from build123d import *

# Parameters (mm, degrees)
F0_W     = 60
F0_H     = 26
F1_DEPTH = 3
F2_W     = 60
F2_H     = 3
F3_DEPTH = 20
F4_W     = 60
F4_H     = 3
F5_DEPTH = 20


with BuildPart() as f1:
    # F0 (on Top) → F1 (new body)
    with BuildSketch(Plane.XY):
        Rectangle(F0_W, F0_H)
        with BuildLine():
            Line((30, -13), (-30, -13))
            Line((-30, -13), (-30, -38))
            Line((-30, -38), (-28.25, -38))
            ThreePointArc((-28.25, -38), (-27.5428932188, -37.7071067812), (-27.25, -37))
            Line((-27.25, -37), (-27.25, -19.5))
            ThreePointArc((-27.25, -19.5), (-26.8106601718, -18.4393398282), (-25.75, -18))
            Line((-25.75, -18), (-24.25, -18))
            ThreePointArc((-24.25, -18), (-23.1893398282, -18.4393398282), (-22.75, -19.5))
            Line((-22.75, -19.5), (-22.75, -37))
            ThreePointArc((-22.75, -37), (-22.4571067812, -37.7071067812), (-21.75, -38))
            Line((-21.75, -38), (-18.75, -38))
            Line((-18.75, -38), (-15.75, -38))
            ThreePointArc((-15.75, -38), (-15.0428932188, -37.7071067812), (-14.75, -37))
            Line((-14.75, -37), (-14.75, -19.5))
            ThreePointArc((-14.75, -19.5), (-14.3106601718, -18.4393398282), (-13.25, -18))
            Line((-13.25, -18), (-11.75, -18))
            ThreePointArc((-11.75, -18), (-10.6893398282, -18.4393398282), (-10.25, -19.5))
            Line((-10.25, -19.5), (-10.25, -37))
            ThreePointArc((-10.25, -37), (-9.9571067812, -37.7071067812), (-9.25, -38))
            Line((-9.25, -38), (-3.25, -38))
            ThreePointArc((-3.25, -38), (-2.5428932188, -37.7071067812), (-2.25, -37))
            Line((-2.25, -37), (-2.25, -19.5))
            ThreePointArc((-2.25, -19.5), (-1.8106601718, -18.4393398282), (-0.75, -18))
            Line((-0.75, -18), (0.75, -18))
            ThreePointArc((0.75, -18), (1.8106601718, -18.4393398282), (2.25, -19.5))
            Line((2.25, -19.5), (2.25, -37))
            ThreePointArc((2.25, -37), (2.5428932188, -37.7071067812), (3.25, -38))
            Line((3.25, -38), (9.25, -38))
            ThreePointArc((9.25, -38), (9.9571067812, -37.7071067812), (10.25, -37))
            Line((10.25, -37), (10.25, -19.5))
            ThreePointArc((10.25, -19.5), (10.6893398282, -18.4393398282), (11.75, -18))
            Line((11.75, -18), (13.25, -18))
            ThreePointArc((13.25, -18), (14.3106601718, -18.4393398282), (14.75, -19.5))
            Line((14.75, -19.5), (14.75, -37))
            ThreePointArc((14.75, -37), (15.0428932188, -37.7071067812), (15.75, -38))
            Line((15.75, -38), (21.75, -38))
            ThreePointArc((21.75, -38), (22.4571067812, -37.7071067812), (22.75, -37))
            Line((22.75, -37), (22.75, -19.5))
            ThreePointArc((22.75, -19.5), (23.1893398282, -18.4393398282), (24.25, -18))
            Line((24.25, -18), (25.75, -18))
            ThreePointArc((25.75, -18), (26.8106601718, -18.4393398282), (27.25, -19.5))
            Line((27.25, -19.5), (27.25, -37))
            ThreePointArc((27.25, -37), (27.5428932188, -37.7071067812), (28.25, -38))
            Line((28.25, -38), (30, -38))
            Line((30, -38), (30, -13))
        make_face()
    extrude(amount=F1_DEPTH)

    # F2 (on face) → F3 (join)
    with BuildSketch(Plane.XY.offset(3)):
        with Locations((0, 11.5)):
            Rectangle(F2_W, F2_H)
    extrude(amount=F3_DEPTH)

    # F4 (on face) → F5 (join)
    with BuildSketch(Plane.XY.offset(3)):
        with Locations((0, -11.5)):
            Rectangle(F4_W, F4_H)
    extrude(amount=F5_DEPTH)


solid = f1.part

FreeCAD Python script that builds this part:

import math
import FreeCAD as App
import Part
import Sketcher

V = App.Vector
Q = App.Units.Quantity


def add_polygon(sketch, points):
    """Adds a closed chain of lines whose ends are joined by coincident constraints."""
    first, n = sketch.GeometryCount, len(points)
    for a, b in zip(points, points[1:] + points[:1]):
        sketch.addGeometry(Part.LineSegment(App.Vector(*a, 0), App.Vector(*b, 0)), False)
    for i in range(n):
        sketch.addConstraint(Sketcher.Constraint("Coincident", first + i, 2, first + (i + 1) % n, 1))

doc = App.newDocument("Part")
params = doc.addObject("Spreadsheet::Sheet", "Params")
for row, (alias, value) in enumerate([
    ("sketch1_radius", "1 mm"),
    ("sketch1_radius2", "1.5 mm"),
    ("sketch1_width", "6 mm"),
    ("sketch1_width2", "60 mm"),
    ("sketch1_height", "51 mm"),
    ("pad1_length", "3 mm"),
    ("sketch2_width", "60 mm"),
    ("sketch2_height", "3 mm"),
    ("pad2_length", "20 mm"),
    ("sketch3_width", "60 mm"),
    ("sketch3_height", "3 mm"),
    ("pad3_length", "20 mm"),
], start=1):
    params.set(f"A{row}", alias)
    params.set(f"B{row}", "=" + value)
    params.setAlias(f"B{row}", alias)

body = doc.addObject("PartDesign::Body", "Body")

# Sketch on XY plane
sketch1 = body.newObject("Sketcher::SketchObject", "Sketch")
sketch1.AttachmentSupport = (doc.getObject("XY_Plane"), [""])
sketch1.MapMode = "FlatFace"
sketch1.addGeometry([
    Part.LineSegment(V(-30, 13, 0), V(-30, -38, 0)),  # 0
    Part.LineSegment(V(-30, -38, 0), V(-28.2, -38, 0)),  # 1
    Part.ArcOfCircle(Part.Circle(V(-28.2, -37, 0), V(0, 0, 1), 1), math.radians(-90), math.radians(0)),  # 2
    Part.LineSegment(V(-27.2, -37, 0), V(-27.2, -19.5, 0)),  # 3
    Part.ArcOfCircle(Part.Circle(V(-25.8, -19.5, 0), V(0, 0, 1), 1.5), math.radians(90), math.radians(180)),  # 4
    Part.LineSegment(V(-25.8, -18, 0), V(-24.2, -18, 0)),  # 5
    Part.ArcOfCircle(Part.Circle(V(-24.2, -19.5, 0), V(0, 0, 1), 1.5), math.radians(0), math.radians(90)),  # 6
    Part.LineSegment(V(-22.8, -19.5, 0), V(-22.8, -37, 0)),  # 7
    Part.ArcOfCircle(Part.Circle(V(-21.8, -37, 0), V(0, 0, 1), 1), math.radians(180), math.radians(270)),  # 8
    Part.LineSegment(V(-21.8, -38, 0), V(-15.8, -38, 0)),  # 9
    Part.ArcOfCircle(Part.Circle(V(-15.8, -37, 0), V(0, 0, 1), 1), math.radians(-90), math.radians(0)),  # 10
    Part.LineSegment(V(-14.8, -37, 0), V(-14.8, -19.5, 0)),  # 11
    Part.ArcOfCircle(Part.Circle(V(-13.2, -19.5, 0), V(0, 0, 1), 1.5), math.radians(90), math.radians(180)),  # 12
    Part.LineSegment(V(-13.2, -18, 0), V(-11.8, -18, 0)),  # 13
    Part.ArcOfCircle(Part.Circle(V(-11.8, -19.5, 0), V(0, 0, 1), 1.5), math.radians(0), math.radians(90)),  # 14
    Part.LineSegment(V(-10.2, -19.5, 0), V(-10.2, -37, 0)),  # 15
    Part.ArcOfCircle(Part.Circle(V(-9.2, -37, 0), V(0, 0, 1), 1), math.radians(180), math.radians(270)),  # 16
    Part.LineSegment(V(-9.2, -38, 0), V(-3.2, -38, 0)),  # 17
    Part.ArcOfCircle(Part.Circle(V(-3.2, -37, 0), V(0, 0, 1), 1), math.radians(-90), math.radians(0)),  # 18
    Part.LineSegment(V(-2.2, -37, 0), V(-2.2, -19.5, 0)),  # 19
    Part.ArcOfCircle(Part.Circle(V(-0.8, -19.5, 0), V(0, 0, 1), 1.5), math.radians(90), math.radians(180)),  # 20
    Part.LineSegment(V(-0.8, -18, 0), V(0.8, -18, 0)),  # 21
    Part.ArcOfCircle(Part.Circle(V(0.8, -19.5, 0), V(0, 0, 1), 1.5), math.radians(0), math.radians(90)),  # 22
    Part.LineSegment(V(2.2, -19.5, 0), V(2.2, -37, 0)),  # 23
    Part.ArcOfCircle(Part.Circle(V(3.2, -37, 0), V(0, 0, 1), 1), math.radians(180), math.radians(270)),  # 24
    Part.LineSegment(V(3.2, -38, 0), V(9.2, -38, 0)),  # 25
    Part.ArcOfCircle(Part.Circle(V(9.2, -37, 0), V(0, 0, 1), 1), math.radians(-90), math.radians(0)),  # 26
    Part.LineSegment(V(10.2, -37, 0), V(10.2, -19.5, 0)),  # 27
    Part.ArcOfCircle(Part.Circle(V(11.8, -19.5, 0), V(0, 0, 1), 1.5), math.radians(90), math.radians(180)),  # 28
    Part.LineSegment(V(11.8, -18, 0), V(13.2, -18, 0)),  # 29
    Part.ArcOfCircle(Part.Circle(V(13.2, -19.5, 0), V(0, 0, 1), 1.5), math.radians(0), math.radians(90)),  # 30
    Part.LineSegment(V(14.8, -19.5, 0), V(14.8, -37, 0)),  # 31
    Part.ArcOfCircle(Part.Circle(V(15.8, -37, 0), V(0, 0, 1), 1), math.radians(180), math.radians(270)),  # 32
    Part.LineSegment(V(15.8, -38, 0), V(21.8, -38, 0)),  # 33
    Part.ArcOfCircle(Part.Circle(V(21.8, -37, 0), V(0, 0, 1), 1), math.radians(-90), math.radians(0)),  # 34
    Part.LineSegment(V(22.8, -37, 0), V(22.8, -19.5, 0)),  # 35
    Part.ArcOfCircle(Part.Circle(V(24.2, -19.5, 0), V(0, 0, 1), 1.5), math.radians(90), math.radians(180)),  # 36
    Part.LineSegment(V(24.2, -18, 0), V(25.8, -18, 0)),  # 37
    Part.ArcOfCircle(Part.Circle(V(25.8, -19.5, 0), V(0, 0, 1), 1.5), math.radians(0), math.radians(90)),  # 38
    Part.LineSegment(V(27.2, -19.5, 0), V(27.2, -37, 0)),  # 39
    Part.ArcOfCircle(Part.Circle(V(28.2, -37, 0), V(0, 0, 1), 1), math.radians(180), math.radians(270)),  # 40
    Part.LineSegment(V(28.2, -38, 0), V(30, -38, 0)),  # 41
    Part.LineSegment(V(30, -38, 0), V(30, 13, 0)),  # 42
    Part.LineSegment(V(30, 13, 0), V(-30, 13, 0)),  # 43
], False)
sketch1.addConstraint([
    Sketcher.Constraint("Coincident", 0, 2, 1, 1),
    Sketcher.Constraint("Tangent", 1, 2, 2, 1),
    Sketcher.Constraint("Tangent", 2, 2, 3, 1),
    Sketcher.Constraint("Tangent", 3, 2, 4, 2),
    Sketcher.Constraint("Tangent", 4, 1, 5, 1),
    Sketcher.Constraint("Tangent", 5, 2, 6, 2),
    Sketcher.Constraint("Tangent", 6, 1, 7, 1),
    Sketcher.Constraint("Tangent", 7, 2, 8, 1),
    Sketcher.Constraint("Tangent", 8, 2, 9, 1),
    Sketcher.Constraint("Tangent", 9, 2, 10, 1),
    Sketcher.Constraint("Tangent", 10, 2, 11, 1),
    Sketcher.Constraint("Tangent", 11, 2, 12, 2),
    Sketcher.Constraint("Tangent", 12, 1, 13, 1),
    Sketcher.Constraint("Tangent", 13, 2, 14, 2),
    Sketcher.Constraint("Tangent", 14, 1, 15, 1),
    Sketcher.Constraint("Tangent", 15, 2, 16, 1),
    Sketcher.Constraint("Tangent", 16, 2, 17, 1),
    Sketcher.Constraint("Tangent", 17, 2, 18, 1),
    Sketcher.Constraint("Tangent", 18, 2, 19, 1),
    Sketcher.Constraint("Tangent", 19, 2, 20, 2),
    Sketcher.Constraint("Tangent", 20, 1, 21, 1),
    Sketcher.Constraint("Tangent", 21, 2, 22, 2),
    Sketcher.Constraint("Tangent", 22, 1, 23, 1),
    Sketcher.Constraint("Tangent", 23, 2, 24, 1),
    Sketcher.Constraint("Tangent", 24, 2, 25, 1),
    Sketcher.Constraint("Tangent", 25, 2, 26, 1),
    Sketcher.Constraint("Tangent", 26, 2, 27, 1),
    Sketcher.Constraint("Tangent", 27, 2, 28, 2),
    Sketcher.Constraint("Tangent", 28, 1, 29, 1),
    Sketcher.Constraint("Tangent", 29, 2, 30, 2),
    Sketcher.Constraint("Tangent", 30, 1, 31, 1),
    Sketcher.Constraint("Tangent", 31, 2, 32, 1),
    Sketcher.Constraint("Tangent", 32, 2, 33, 1),
    Sketcher.Constraint("Tangent", 33, 2, 34, 1),
    Sketcher.Constraint("Tangent", 34, 2, 35, 1),
    Sketcher.Constraint("Tangent", 35, 2, 36, 2),
    Sketcher.Constraint("Tangent", 36, 1, 37, 1),
    Sketcher.Constraint("Tangent", 37, 2, 38, 2),
    Sketcher.Constraint("Tangent", 38, 1, 39, 1),
    Sketcher.Constraint("Tangent", 39, 2, 40, 1),
    Sketcher.Constraint("Tangent", 40, 2, 41, 1),
    Sketcher.Constraint("Coincident", 41, 2, 42, 1),
    Sketcher.Constraint("Coincident", 42, 2, 43, 1),
    Sketcher.Constraint("Coincident", 43, 2, 0, 1),
    Sketcher.Constraint("Vertical", 0),
    Sketcher.Constraint("Horizontal", 1),
    Sketcher.Constraint("Vertical", 3),
    Sketcher.Constraint("Horizontal", 5),
    Sketcher.Constraint("Vertical", 7),
    Sketcher.Constraint("Horizontal", 9),
    Sketcher.Constraint("Vertical", 11),
    Sketcher.Constraint("Horizontal", 13),
    Sketcher.Constraint("Vertical", 15),
    Sketcher.Constraint("Horizontal", 17),
    Sketcher.Constraint("Vertical", 19),
    Sketcher.Constraint("Horizontal", 21),
    Sketcher.Constraint("Vertical", 23),
    Sketcher.Constraint("Horizontal", 25),
    Sketcher.Constraint("Vertical", 27),
    Sketcher.Constraint("Horizontal", 29),
    Sketcher.Constraint("Vertical", 31),
    Sketcher.Constraint("Horizontal", 33),
    Sketcher.Constraint("Vertical", 35),
    Sketcher.Constraint("Horizontal", 37),
    Sketcher.Constraint("Vertical", 39),
    Sketcher.Constraint("Horizontal", 41),
    Sketcher.Constraint("Vertical", 42),
    Sketcher.Constraint("Horizontal", 43),
    Sketcher.Constraint("Equal", 4, 6),
    Sketcher.Constraint("Equal", 2, 8),
    Sketcher.Constraint("Equal", 8, 10),
    Sketcher.Constraint("Equal", 6, 12),
    Sketcher.Constraint("Equal", 12, 14),
    Sketcher.Constraint("Equal", 10, 16),
    Sketcher.Constraint("Equal", 16, 18),
    Sketcher.Constraint("Equal", 14, 20),
    Sketcher.Constraint("Equal", 20, 22),
    Sketcher.Constraint("Equal", 18, 24),
    Sketcher.Constraint("Equal", 24, 26),
    Sketcher.Constraint("Equal", 22, 28),
    Sketcher.Constraint("Equal", 28, 30),
    Sketcher.Constraint("Equal", 26, 32),
    Sketcher.Constraint("Equal", 32, 34),
    Sketcher.Constraint("Equal", 30, 36),
    Sketcher.Constraint("Equal", 36, 38),
    Sketcher.Constraint("Equal", 34, 40),
    Sketcher.Constraint("Symmetric", 18, 3, 24, 3, -2),
    Sketcher.Constraint("Symmetric", 14, 3, 28, 3, -2),
    Sketcher.Constraint("Symmetric", 10, 3, 32, 3, -2),
    Sketcher.Constraint("Symmetric", 6, 3, 36, 3, -2),
    Sketcher.Constraint("Symmetric", 2, 3, 40, 3, -2),
    Sketcher.Constraint("Horizontal", 2, 3, 8, 3),
    Sketcher.Constraint("Horizontal", 6, 3, 12, 3),
    Sketcher.Constraint("Horizontal", 10, 3, 16, 3),
    Sketcher.Constraint("Horizontal", 14, 3, 20, 3),
    Sketcher.Constraint("Equal", 5, 13),
    Sketcher.Constraint("Equal", 9, 17),
    Sketcher.Constraint("Equal", 13, 21),
    Sketcher.Constraint("Equal", 1, 41),
    Sketcher.Constraint("Radius", 2, Q("1 mm")),
    Sketcher.Constraint("Radius", 4, Q("1.5 mm")),
    Sketcher.Constraint("DistanceX", 9, 1, 9, 2, Q("6 mm")),
    Sketcher.Constraint("DistanceX", 43, 2, 43, 1, Q("60 mm")),
    Sketcher.Constraint("DistanceY", 0, 2, 0, 1, Q("51 mm")),
    Sketcher.Constraint("DistanceX", 5, 1, 5, 2, Q("1.5 mm")),
    Sketcher.Constraint("DistanceY", 3, 1, 3, 2, Q("17.5 mm")),
    Sketcher.Constraint("DistanceY", 2, 3, -1, 1, Q("37 mm")),
])
sketch1.setExpression("Constraints[99]", "Params.sketch1_radius")
sketch1.setExpression("Constraints[100]", "Params.sketch1_radius2")
sketch1.setExpression("Constraints[101]", "Params.sketch1_width")
sketch1.setExpression("Constraints[102]", "Params.sketch1_width2")
sketch1.setExpression("Constraints[103]", "Params.sketch1_height")
pad1 = body.newObject("PartDesign::Pad", "Pad")
pad1.Profile = sketch1
pad1.setExpression("Length", "Params.pad1_length")

# Sketch on XY plane
sketch2 = body.newObject("Sketcher::SketchObject", "Sketch001")
sketch2.AttachmentSupport = (doc.getObject("XY_Plane"), [""])
sketch2.MapMode = "FlatFace"
sketch2.AttachmentOffset = App.Placement(V(0, 0, 3), App.Rotation())
add_polygon(sketch2, [(-30, 13), (-30, 10), (30, 10), (30, 13)])  # lines 0-3
sketch2.addConstraint([
    Sketcher.Constraint("Vertical", 0),
    Sketcher.Constraint("Horizontal", 1),
    Sketcher.Constraint("Vertical", 2),
    Sketcher.Constraint("Horizontal", 3),
    Sketcher.Constraint("DistanceX", 1, 1, 1, 2, Q("60 mm")),
    Sketcher.Constraint("DistanceY", 0, 2, 0, 1, Q("3 mm")),
    Sketcher.Constraint("DistanceX", 0, 2, -1, 1, Q("30 mm")),
    Sketcher.Constraint("DistanceY", -1, 1, 0, 2, Q("10 mm")),
])
sketch2.setExpression("Constraints[8]", "Params.sketch2_width")
sketch2.setExpression("Constraints[9]", "Params.sketch2_height")
pad2 = body.newObject("PartDesign::Pad", "Pad001")
pad2.Profile = sketch2
pad2.setExpression("Length", "Params.pad2_length")

# Sketch on XY plane
sketch3 = body.newObject("Sketcher::SketchObject", "Sketch002")
sketch3.AttachmentSupport = (doc.getObject("XY_Plane"), [""])
sketch3.MapMode = "FlatFace"
sketch3.AttachmentOffset = App.Placement(V(0, 0, 3), App.Rotation())
add_polygon(sketch3, [(-30, -10), (-30, -13), (30, -13), (30, -10)])  # lines 0-3
sketch3.addConstraint([
    Sketcher.Constraint("Vertical", 0),
    Sketcher.Constraint("Horizontal", 1),
    Sketcher.Constraint("Vertical", 2),
    Sketcher.Constraint("Horizontal", 3),
    Sketcher.Constraint("DistanceX", 1, 1, 1, 2, Q("60 mm")),
    Sketcher.Constraint("DistanceY", 0, 2, 0, 1, Q("3 mm")),
    Sketcher.Constraint("DistanceX", 0, 2, -1, 1, Q("30 mm")),
    Sketcher.Constraint("DistanceY", 0, 2, -1, 1, Q("13 mm")),
])
sketch3.setExpression("Constraints[8]", "Params.sketch3_width")
sketch3.setExpression("Constraints[9]", "Params.sketch3_height")
pad3 = body.newObject("PartDesign::Pad", "Pad002")
pad3.Profile = sketch3
pad3.setExpression("Length", "Params.pad3_length")

doc.recompute()
